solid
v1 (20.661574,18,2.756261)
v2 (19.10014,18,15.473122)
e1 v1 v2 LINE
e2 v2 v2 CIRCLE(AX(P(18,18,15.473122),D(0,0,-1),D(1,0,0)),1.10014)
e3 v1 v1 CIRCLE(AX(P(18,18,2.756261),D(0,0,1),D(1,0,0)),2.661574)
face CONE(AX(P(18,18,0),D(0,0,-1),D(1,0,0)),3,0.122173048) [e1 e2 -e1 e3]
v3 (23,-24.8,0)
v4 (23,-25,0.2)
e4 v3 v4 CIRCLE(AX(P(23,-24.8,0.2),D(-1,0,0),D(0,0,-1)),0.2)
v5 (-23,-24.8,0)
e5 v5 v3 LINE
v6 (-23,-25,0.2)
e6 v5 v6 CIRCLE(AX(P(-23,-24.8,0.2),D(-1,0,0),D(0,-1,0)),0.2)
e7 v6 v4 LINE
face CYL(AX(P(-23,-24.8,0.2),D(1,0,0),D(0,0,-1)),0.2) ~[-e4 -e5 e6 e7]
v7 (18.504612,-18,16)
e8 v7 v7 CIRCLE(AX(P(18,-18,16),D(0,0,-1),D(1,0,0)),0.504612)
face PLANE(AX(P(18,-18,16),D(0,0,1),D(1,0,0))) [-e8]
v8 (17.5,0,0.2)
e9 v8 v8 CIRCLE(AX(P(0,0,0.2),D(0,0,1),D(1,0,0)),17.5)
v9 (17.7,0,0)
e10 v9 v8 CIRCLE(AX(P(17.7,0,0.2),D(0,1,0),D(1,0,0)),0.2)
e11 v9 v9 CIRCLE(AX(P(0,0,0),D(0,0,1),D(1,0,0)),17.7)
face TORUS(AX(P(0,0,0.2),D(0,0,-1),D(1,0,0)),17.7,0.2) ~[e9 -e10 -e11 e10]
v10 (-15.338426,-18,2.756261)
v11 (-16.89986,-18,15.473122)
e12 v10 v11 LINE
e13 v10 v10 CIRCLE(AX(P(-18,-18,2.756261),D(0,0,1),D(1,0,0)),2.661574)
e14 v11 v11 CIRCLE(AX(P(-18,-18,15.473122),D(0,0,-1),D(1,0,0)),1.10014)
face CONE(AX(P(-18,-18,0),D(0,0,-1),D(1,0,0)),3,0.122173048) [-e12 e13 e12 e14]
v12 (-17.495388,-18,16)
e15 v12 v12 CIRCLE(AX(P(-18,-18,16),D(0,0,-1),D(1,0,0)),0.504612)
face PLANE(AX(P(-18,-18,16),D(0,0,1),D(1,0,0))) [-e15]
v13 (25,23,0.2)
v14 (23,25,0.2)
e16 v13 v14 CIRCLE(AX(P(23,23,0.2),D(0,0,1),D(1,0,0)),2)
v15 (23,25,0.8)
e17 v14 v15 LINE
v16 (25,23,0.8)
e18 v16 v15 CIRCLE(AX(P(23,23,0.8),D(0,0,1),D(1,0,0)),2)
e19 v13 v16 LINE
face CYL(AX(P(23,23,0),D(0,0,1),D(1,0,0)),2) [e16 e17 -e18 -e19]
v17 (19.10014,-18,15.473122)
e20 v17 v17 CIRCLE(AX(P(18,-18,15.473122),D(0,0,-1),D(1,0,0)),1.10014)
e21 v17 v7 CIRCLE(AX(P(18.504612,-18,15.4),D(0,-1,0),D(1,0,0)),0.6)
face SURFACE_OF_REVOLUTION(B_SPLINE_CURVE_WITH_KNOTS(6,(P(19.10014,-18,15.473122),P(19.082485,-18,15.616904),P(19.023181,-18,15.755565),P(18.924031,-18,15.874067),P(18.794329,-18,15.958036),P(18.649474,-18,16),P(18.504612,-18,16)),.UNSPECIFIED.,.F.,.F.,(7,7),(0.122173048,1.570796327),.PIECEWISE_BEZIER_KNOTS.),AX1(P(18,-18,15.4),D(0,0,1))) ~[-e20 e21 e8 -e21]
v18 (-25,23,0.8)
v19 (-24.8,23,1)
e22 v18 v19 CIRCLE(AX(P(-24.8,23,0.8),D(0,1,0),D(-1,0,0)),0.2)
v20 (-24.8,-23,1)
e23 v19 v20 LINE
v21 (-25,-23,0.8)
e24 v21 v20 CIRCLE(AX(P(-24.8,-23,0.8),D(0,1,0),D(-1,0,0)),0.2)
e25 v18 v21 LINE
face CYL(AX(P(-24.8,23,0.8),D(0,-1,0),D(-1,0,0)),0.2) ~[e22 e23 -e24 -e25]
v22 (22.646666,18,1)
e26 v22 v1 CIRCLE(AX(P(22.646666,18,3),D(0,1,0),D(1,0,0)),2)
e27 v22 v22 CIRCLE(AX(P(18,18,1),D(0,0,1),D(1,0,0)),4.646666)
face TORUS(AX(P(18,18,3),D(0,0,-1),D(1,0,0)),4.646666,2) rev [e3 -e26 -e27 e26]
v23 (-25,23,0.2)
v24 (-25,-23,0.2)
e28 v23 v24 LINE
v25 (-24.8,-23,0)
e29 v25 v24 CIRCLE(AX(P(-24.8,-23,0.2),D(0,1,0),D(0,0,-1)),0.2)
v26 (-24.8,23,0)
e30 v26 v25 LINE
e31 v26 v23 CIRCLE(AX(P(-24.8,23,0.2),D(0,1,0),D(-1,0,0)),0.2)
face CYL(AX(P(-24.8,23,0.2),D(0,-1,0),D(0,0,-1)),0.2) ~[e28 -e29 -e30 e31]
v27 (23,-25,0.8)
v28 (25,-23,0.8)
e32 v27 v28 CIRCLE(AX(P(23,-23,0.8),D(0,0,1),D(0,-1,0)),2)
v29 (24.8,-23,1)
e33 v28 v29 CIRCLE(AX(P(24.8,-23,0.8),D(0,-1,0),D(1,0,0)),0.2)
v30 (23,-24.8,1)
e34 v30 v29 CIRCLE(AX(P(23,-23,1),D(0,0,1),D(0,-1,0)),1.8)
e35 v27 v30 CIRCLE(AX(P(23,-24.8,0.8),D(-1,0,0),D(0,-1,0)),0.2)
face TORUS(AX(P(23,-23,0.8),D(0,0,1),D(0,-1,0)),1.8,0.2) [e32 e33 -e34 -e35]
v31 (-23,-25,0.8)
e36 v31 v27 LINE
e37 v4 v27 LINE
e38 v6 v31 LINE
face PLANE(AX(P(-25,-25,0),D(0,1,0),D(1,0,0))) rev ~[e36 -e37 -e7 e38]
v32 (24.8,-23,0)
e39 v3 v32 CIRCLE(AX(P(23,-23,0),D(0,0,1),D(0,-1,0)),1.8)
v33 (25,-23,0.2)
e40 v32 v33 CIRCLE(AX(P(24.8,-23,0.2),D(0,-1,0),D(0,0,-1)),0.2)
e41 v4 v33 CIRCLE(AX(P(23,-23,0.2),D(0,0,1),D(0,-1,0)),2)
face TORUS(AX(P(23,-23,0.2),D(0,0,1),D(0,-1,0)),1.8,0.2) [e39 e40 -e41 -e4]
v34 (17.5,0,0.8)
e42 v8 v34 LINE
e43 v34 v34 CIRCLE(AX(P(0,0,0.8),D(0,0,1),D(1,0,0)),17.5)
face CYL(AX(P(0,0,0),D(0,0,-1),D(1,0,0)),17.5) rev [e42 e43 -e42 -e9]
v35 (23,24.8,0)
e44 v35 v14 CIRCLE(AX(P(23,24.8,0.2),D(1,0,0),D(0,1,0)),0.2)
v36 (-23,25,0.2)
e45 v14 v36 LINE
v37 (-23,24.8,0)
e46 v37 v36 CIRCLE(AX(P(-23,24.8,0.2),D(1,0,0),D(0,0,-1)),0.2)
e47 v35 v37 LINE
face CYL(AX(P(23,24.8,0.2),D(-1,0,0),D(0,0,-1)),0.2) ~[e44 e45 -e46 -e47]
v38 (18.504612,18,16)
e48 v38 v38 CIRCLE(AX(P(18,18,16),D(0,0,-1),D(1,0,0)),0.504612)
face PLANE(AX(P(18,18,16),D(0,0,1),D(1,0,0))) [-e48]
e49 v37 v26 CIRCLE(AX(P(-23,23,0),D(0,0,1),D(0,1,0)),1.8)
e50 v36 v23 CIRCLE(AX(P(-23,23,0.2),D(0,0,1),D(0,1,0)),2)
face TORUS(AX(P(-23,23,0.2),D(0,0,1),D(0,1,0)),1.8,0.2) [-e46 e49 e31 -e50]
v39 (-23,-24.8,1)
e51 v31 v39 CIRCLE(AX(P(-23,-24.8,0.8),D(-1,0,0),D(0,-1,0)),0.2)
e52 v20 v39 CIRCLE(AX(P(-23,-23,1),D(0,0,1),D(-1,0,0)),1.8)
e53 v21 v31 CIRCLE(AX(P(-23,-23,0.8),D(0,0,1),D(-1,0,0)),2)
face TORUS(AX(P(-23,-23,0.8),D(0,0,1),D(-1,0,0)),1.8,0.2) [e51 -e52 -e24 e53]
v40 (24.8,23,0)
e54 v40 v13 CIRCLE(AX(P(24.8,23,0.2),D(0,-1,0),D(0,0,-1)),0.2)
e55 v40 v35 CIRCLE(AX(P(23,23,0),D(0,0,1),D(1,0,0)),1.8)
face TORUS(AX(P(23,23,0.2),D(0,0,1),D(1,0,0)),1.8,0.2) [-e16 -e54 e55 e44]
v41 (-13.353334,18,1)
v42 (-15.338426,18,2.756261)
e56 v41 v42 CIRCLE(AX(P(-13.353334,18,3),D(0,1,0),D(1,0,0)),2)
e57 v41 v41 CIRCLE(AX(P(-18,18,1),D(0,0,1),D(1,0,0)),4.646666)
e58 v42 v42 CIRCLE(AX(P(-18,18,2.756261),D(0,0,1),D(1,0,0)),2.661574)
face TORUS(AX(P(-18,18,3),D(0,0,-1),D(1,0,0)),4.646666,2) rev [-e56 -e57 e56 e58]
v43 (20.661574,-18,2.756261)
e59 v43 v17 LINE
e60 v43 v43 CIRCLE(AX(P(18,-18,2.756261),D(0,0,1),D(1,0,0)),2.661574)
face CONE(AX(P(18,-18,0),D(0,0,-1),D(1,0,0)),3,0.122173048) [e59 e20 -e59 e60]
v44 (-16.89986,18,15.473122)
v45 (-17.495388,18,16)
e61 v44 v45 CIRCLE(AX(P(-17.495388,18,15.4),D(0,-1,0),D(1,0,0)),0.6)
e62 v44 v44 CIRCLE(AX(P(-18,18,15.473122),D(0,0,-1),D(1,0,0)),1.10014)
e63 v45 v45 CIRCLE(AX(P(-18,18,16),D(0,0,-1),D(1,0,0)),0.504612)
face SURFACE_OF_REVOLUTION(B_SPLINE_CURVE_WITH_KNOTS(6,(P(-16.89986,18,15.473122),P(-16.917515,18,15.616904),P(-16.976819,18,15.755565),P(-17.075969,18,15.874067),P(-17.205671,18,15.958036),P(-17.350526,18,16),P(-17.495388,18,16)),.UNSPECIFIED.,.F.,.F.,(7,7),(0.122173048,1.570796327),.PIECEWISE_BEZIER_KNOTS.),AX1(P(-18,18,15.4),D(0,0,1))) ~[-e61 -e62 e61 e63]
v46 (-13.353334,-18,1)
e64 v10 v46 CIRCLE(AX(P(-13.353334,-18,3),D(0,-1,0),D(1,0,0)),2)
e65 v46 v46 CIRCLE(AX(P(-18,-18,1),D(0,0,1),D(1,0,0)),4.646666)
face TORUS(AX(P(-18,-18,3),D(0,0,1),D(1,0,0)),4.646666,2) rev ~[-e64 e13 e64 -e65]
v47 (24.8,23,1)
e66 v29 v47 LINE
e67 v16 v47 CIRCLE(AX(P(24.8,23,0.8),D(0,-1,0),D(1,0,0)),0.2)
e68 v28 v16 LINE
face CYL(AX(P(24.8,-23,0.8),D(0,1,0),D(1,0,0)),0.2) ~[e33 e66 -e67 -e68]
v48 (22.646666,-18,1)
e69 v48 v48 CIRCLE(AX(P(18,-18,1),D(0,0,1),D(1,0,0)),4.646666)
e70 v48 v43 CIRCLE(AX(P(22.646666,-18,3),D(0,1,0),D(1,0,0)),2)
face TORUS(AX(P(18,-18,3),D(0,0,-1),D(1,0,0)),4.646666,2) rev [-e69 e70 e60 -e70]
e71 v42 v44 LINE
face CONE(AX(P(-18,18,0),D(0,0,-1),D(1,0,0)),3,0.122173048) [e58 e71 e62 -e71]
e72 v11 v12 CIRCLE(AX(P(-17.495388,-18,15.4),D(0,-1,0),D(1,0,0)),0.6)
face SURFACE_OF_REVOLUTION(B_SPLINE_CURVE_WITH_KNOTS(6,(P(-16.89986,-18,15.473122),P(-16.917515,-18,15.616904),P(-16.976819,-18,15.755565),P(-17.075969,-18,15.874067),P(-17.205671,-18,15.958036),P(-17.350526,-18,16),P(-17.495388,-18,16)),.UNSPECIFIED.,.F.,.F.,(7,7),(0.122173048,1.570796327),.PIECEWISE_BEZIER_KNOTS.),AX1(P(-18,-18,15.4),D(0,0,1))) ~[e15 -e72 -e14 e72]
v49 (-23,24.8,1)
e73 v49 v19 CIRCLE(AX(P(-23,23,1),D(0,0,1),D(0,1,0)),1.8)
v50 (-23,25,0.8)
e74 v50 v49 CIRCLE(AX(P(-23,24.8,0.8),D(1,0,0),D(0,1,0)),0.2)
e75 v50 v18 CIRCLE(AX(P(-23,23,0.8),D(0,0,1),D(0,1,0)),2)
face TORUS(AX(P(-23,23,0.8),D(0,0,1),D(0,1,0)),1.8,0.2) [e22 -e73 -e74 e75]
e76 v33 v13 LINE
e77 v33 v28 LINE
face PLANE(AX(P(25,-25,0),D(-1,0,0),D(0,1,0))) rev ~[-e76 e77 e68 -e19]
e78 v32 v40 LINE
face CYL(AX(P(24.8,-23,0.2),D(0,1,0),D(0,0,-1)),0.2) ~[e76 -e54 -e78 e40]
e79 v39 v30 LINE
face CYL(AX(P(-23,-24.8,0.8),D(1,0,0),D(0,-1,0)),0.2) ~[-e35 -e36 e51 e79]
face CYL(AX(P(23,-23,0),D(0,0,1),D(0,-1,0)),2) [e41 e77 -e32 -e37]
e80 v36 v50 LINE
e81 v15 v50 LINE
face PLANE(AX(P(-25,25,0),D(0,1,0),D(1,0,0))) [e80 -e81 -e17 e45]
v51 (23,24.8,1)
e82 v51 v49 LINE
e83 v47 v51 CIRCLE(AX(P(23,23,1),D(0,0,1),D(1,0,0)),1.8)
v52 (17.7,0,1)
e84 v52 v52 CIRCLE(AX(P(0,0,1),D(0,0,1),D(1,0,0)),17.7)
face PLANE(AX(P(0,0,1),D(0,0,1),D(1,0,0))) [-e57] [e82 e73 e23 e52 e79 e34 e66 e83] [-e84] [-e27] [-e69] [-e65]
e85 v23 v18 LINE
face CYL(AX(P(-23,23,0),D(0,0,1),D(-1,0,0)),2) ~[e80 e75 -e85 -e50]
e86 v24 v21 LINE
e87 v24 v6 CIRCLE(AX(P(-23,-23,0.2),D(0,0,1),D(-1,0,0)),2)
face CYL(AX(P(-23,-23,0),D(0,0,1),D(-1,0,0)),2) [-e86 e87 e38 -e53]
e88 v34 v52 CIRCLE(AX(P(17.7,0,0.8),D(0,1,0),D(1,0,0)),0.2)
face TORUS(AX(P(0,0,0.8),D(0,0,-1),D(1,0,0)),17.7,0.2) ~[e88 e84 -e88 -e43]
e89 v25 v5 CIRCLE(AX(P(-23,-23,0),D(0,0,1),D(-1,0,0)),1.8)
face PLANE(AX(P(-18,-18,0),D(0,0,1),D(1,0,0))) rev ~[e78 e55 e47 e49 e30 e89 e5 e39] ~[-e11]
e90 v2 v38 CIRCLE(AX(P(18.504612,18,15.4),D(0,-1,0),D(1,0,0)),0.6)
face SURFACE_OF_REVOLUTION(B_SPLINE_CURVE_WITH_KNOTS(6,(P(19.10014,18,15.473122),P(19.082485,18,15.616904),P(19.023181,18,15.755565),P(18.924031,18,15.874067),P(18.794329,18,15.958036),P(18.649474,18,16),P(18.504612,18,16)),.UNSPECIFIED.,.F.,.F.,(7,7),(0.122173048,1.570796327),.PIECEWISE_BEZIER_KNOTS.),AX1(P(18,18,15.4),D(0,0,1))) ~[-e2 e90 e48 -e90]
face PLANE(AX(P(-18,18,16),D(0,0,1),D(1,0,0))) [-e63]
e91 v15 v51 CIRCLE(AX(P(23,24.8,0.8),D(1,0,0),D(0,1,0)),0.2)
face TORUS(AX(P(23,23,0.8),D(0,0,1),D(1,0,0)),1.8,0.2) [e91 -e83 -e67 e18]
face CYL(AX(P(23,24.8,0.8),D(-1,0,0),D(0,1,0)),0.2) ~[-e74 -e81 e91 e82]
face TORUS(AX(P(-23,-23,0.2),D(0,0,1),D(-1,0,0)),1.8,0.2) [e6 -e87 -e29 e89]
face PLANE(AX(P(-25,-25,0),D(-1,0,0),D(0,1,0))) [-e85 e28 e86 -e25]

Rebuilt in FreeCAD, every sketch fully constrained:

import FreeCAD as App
import Part
import Sketcher
from FreeCAD import Vector
Q = App.Units.Quantity


def edges_at(feature, points):
    """Names of the edges that pass closest to the given points."""
    edges = feature.Shape.Edges
    near = lambda p: min(range(len(edges)), key=lambda i: edges[i].distToShape(Part.Vertex(*p))[0])
    return sorted({f"Edge{near(p) + 1}" for p in points})


def add_polygon(sketch, points):
    """Adds a closed chain of lines whose ends are joined by coincident constraints."""
    first, n = sketch.GeometryCount, len(points)
    for a, b in zip(points, points[1:] + points[:1]):
        sketch.addGeometry(Part.LineSegment(App.Vector(*a, 0), App.Vector(*b, 0)), False)
    for i in range(n):
        sketch.addConstraint(Sketcher.Constraint("Coincident", first + i, 2, first + (i + 1) % n, 1))

doc = App.newDocument("Part")
body = doc.addObject("PartDesign::Body", "Body")

# Sketch on XY plane
sketch1 = doc.addObject("Sketcher::SketchObject", "Sketch")
body.addObject(sketch1)
sketch1.AttachmentSupport = (doc.XY_Plane, [""])
sketch1.MapMode = "FlatFace"
add_polygon(sketch1, [(-25, 25), (-25, -25), (25, -25), (25, 25)])  # lines 0-3
sketch1.addGeometry(Part.Circle(Vector(0, 0, 0), Vector(0, 0, 1), 18), False)  # 4
sketch1.addConstraint(Sketcher.Constraint("Vertical", 0))
sketch1.addConstraint(Sketcher.Constraint("Horizontal", 1))
sketch1.addConstraint(Sketcher.Constraint("Vertical", 2))
sketch1.addConstraint(Sketcher.Constraint("Horizontal", 3))
sketch1.addConstraint(Sketcher.Constraint("Coincident", 4, 3, -1, 1))
sketch1.addConstraint(Sketcher.Constraint("Symmetric", 0, 2, 2, 2, -1, 1))
sketch1.addConstraint(Sketcher.Constraint("Equal", 3, 0))
sketch1.addConstraint(Sketcher.Constraint("Diameter", 4, Q("35 mm")))
sketch1.addConstraint(Sketcher.Constraint("DistanceX", 1, 1, 1, 2, Q("50 mm")))
pad1 = doc.addObject("PartDesign::Pad", "Pad")
body.addObject(pad1)
pad1.Profile = sketch1
pad1.Length = 1
doc.recompute()

fillet = doc.addObject("PartDesign::Fillet", "Fillet")
body.addObject(fillet)
fillet.Base = (pad1, edges_at(pad1, [
    (-25, -25, 0.5),
    (25, -25, 0.5),
    (25, 25, 0.5),
    (-25, 25, 0.5),
]))
fillet.Radius = 2

# Sketch on XY plane
sketch2 = doc.addObject("Sketcher::SketchObject", "Sketch001")
body.addObject(sketch2)
sketch2.AttachmentSupport = (doc.XY_Plane, [""])
sketch2.MapMode = "FlatFace"
sketch2.addGeometry(Part.Circle(Vector(-18, -18, 0), Vector(0, 0, 1), 3), False)
sketch2.addGeometry(Part.Circle(Vector(-18, 18, 0), Vector(0, 0, 1), 3), False)
sketch2.addGeometry(Part.Circle(Vector(18, 18, 0), Vector(0, 0, 1), 3), False)
sketch2.addGeometry(Part.Circle(Vector(18, -18, 0), Vector(0, 0, 1), 3), False)
sketch2.addConstraint(Sketcher.Constraint("Equal", 0, 1))
sketch2.addConstraint(Sketcher.Constraint("Equal", 1, 2))
sketch2.addConstraint(Sketcher.Constraint("Equal", 2, 3))
sketch2.addConstraint(Sketcher.Constraint("Symmetric", 0, 3, 2, 3, -1, 1))
sketch2.addConstraint(Sketcher.Constraint("Symmetric", 1, 3, 3, 3, -1, 1))
sketch2.addConstraint(Sketcher.Constraint("Symmetric", 1, 3, 2, 3, -2))
sketch2.addConstraint(Sketcher.Constraint("Diameter", 0, Q("6 mm")))
sketch2.addConstraint(Sketcher.Constraint("DistanceX", 0, 3, -1, 1, Q("18 mm")))
sketch2.addConstraint(Sketcher.Constraint("DistanceY", 0, 3, -1, 1, Q("18 mm")))
pad2 = doc.addObject("PartDesign::Pad", "Pad001")
body.addObject(pad2)
pad2.Profile = sketch2
pad2.Length = 16
pad2.TaperAngle = -7
doc.recompute()

fillet2 = doc.addObject("PartDesign::Fillet", "Fillet001")
body.addObject(fillet2)
fillet2.Base = (pad2, edges_at(pad2, [
    (25, 0, 0),
    (24.414, 24.414, 0),
    (0, 25, 0),
    (-24.414, 24.414, 0),
    (-25, 0, 0),
    (-24.414, -24.414, 0),
    (0, -25, 0),
    (24.414, -24.414, 0),
    (-17.5, 0, 0),
    (-17.5, 0, 1),
    (0, -25, 1),
]))
fillet2.Radius = 0.2
doc.recompute()

fillet3 = doc.addObject("PartDesign::Fillet", "Fillet002")
body.addObject(fillet3)
fillet3.Base = (fillet2, edges_at(fillet2, [
    (-19.035, 18, 16),
    (-19.035, -18, 16),
    (16.965, -18, 16),
    (16.965, 18, 16),
]))
fillet3.Radius = 0.6
doc.recompute()

fillet4 = doc.addObject("PartDesign::Fillet", "Fillet003")
body.addObject(fillet4)
fillet4.Base = (fillet3, edges_at(fillet3, [
    (-20.877, 18, 1),
    (-20.877, -18, 1),
    (15.123, -18, 1),
    (15.123, 18, 1),
]))
fillet4.Radius = 2

doc.recompute()
